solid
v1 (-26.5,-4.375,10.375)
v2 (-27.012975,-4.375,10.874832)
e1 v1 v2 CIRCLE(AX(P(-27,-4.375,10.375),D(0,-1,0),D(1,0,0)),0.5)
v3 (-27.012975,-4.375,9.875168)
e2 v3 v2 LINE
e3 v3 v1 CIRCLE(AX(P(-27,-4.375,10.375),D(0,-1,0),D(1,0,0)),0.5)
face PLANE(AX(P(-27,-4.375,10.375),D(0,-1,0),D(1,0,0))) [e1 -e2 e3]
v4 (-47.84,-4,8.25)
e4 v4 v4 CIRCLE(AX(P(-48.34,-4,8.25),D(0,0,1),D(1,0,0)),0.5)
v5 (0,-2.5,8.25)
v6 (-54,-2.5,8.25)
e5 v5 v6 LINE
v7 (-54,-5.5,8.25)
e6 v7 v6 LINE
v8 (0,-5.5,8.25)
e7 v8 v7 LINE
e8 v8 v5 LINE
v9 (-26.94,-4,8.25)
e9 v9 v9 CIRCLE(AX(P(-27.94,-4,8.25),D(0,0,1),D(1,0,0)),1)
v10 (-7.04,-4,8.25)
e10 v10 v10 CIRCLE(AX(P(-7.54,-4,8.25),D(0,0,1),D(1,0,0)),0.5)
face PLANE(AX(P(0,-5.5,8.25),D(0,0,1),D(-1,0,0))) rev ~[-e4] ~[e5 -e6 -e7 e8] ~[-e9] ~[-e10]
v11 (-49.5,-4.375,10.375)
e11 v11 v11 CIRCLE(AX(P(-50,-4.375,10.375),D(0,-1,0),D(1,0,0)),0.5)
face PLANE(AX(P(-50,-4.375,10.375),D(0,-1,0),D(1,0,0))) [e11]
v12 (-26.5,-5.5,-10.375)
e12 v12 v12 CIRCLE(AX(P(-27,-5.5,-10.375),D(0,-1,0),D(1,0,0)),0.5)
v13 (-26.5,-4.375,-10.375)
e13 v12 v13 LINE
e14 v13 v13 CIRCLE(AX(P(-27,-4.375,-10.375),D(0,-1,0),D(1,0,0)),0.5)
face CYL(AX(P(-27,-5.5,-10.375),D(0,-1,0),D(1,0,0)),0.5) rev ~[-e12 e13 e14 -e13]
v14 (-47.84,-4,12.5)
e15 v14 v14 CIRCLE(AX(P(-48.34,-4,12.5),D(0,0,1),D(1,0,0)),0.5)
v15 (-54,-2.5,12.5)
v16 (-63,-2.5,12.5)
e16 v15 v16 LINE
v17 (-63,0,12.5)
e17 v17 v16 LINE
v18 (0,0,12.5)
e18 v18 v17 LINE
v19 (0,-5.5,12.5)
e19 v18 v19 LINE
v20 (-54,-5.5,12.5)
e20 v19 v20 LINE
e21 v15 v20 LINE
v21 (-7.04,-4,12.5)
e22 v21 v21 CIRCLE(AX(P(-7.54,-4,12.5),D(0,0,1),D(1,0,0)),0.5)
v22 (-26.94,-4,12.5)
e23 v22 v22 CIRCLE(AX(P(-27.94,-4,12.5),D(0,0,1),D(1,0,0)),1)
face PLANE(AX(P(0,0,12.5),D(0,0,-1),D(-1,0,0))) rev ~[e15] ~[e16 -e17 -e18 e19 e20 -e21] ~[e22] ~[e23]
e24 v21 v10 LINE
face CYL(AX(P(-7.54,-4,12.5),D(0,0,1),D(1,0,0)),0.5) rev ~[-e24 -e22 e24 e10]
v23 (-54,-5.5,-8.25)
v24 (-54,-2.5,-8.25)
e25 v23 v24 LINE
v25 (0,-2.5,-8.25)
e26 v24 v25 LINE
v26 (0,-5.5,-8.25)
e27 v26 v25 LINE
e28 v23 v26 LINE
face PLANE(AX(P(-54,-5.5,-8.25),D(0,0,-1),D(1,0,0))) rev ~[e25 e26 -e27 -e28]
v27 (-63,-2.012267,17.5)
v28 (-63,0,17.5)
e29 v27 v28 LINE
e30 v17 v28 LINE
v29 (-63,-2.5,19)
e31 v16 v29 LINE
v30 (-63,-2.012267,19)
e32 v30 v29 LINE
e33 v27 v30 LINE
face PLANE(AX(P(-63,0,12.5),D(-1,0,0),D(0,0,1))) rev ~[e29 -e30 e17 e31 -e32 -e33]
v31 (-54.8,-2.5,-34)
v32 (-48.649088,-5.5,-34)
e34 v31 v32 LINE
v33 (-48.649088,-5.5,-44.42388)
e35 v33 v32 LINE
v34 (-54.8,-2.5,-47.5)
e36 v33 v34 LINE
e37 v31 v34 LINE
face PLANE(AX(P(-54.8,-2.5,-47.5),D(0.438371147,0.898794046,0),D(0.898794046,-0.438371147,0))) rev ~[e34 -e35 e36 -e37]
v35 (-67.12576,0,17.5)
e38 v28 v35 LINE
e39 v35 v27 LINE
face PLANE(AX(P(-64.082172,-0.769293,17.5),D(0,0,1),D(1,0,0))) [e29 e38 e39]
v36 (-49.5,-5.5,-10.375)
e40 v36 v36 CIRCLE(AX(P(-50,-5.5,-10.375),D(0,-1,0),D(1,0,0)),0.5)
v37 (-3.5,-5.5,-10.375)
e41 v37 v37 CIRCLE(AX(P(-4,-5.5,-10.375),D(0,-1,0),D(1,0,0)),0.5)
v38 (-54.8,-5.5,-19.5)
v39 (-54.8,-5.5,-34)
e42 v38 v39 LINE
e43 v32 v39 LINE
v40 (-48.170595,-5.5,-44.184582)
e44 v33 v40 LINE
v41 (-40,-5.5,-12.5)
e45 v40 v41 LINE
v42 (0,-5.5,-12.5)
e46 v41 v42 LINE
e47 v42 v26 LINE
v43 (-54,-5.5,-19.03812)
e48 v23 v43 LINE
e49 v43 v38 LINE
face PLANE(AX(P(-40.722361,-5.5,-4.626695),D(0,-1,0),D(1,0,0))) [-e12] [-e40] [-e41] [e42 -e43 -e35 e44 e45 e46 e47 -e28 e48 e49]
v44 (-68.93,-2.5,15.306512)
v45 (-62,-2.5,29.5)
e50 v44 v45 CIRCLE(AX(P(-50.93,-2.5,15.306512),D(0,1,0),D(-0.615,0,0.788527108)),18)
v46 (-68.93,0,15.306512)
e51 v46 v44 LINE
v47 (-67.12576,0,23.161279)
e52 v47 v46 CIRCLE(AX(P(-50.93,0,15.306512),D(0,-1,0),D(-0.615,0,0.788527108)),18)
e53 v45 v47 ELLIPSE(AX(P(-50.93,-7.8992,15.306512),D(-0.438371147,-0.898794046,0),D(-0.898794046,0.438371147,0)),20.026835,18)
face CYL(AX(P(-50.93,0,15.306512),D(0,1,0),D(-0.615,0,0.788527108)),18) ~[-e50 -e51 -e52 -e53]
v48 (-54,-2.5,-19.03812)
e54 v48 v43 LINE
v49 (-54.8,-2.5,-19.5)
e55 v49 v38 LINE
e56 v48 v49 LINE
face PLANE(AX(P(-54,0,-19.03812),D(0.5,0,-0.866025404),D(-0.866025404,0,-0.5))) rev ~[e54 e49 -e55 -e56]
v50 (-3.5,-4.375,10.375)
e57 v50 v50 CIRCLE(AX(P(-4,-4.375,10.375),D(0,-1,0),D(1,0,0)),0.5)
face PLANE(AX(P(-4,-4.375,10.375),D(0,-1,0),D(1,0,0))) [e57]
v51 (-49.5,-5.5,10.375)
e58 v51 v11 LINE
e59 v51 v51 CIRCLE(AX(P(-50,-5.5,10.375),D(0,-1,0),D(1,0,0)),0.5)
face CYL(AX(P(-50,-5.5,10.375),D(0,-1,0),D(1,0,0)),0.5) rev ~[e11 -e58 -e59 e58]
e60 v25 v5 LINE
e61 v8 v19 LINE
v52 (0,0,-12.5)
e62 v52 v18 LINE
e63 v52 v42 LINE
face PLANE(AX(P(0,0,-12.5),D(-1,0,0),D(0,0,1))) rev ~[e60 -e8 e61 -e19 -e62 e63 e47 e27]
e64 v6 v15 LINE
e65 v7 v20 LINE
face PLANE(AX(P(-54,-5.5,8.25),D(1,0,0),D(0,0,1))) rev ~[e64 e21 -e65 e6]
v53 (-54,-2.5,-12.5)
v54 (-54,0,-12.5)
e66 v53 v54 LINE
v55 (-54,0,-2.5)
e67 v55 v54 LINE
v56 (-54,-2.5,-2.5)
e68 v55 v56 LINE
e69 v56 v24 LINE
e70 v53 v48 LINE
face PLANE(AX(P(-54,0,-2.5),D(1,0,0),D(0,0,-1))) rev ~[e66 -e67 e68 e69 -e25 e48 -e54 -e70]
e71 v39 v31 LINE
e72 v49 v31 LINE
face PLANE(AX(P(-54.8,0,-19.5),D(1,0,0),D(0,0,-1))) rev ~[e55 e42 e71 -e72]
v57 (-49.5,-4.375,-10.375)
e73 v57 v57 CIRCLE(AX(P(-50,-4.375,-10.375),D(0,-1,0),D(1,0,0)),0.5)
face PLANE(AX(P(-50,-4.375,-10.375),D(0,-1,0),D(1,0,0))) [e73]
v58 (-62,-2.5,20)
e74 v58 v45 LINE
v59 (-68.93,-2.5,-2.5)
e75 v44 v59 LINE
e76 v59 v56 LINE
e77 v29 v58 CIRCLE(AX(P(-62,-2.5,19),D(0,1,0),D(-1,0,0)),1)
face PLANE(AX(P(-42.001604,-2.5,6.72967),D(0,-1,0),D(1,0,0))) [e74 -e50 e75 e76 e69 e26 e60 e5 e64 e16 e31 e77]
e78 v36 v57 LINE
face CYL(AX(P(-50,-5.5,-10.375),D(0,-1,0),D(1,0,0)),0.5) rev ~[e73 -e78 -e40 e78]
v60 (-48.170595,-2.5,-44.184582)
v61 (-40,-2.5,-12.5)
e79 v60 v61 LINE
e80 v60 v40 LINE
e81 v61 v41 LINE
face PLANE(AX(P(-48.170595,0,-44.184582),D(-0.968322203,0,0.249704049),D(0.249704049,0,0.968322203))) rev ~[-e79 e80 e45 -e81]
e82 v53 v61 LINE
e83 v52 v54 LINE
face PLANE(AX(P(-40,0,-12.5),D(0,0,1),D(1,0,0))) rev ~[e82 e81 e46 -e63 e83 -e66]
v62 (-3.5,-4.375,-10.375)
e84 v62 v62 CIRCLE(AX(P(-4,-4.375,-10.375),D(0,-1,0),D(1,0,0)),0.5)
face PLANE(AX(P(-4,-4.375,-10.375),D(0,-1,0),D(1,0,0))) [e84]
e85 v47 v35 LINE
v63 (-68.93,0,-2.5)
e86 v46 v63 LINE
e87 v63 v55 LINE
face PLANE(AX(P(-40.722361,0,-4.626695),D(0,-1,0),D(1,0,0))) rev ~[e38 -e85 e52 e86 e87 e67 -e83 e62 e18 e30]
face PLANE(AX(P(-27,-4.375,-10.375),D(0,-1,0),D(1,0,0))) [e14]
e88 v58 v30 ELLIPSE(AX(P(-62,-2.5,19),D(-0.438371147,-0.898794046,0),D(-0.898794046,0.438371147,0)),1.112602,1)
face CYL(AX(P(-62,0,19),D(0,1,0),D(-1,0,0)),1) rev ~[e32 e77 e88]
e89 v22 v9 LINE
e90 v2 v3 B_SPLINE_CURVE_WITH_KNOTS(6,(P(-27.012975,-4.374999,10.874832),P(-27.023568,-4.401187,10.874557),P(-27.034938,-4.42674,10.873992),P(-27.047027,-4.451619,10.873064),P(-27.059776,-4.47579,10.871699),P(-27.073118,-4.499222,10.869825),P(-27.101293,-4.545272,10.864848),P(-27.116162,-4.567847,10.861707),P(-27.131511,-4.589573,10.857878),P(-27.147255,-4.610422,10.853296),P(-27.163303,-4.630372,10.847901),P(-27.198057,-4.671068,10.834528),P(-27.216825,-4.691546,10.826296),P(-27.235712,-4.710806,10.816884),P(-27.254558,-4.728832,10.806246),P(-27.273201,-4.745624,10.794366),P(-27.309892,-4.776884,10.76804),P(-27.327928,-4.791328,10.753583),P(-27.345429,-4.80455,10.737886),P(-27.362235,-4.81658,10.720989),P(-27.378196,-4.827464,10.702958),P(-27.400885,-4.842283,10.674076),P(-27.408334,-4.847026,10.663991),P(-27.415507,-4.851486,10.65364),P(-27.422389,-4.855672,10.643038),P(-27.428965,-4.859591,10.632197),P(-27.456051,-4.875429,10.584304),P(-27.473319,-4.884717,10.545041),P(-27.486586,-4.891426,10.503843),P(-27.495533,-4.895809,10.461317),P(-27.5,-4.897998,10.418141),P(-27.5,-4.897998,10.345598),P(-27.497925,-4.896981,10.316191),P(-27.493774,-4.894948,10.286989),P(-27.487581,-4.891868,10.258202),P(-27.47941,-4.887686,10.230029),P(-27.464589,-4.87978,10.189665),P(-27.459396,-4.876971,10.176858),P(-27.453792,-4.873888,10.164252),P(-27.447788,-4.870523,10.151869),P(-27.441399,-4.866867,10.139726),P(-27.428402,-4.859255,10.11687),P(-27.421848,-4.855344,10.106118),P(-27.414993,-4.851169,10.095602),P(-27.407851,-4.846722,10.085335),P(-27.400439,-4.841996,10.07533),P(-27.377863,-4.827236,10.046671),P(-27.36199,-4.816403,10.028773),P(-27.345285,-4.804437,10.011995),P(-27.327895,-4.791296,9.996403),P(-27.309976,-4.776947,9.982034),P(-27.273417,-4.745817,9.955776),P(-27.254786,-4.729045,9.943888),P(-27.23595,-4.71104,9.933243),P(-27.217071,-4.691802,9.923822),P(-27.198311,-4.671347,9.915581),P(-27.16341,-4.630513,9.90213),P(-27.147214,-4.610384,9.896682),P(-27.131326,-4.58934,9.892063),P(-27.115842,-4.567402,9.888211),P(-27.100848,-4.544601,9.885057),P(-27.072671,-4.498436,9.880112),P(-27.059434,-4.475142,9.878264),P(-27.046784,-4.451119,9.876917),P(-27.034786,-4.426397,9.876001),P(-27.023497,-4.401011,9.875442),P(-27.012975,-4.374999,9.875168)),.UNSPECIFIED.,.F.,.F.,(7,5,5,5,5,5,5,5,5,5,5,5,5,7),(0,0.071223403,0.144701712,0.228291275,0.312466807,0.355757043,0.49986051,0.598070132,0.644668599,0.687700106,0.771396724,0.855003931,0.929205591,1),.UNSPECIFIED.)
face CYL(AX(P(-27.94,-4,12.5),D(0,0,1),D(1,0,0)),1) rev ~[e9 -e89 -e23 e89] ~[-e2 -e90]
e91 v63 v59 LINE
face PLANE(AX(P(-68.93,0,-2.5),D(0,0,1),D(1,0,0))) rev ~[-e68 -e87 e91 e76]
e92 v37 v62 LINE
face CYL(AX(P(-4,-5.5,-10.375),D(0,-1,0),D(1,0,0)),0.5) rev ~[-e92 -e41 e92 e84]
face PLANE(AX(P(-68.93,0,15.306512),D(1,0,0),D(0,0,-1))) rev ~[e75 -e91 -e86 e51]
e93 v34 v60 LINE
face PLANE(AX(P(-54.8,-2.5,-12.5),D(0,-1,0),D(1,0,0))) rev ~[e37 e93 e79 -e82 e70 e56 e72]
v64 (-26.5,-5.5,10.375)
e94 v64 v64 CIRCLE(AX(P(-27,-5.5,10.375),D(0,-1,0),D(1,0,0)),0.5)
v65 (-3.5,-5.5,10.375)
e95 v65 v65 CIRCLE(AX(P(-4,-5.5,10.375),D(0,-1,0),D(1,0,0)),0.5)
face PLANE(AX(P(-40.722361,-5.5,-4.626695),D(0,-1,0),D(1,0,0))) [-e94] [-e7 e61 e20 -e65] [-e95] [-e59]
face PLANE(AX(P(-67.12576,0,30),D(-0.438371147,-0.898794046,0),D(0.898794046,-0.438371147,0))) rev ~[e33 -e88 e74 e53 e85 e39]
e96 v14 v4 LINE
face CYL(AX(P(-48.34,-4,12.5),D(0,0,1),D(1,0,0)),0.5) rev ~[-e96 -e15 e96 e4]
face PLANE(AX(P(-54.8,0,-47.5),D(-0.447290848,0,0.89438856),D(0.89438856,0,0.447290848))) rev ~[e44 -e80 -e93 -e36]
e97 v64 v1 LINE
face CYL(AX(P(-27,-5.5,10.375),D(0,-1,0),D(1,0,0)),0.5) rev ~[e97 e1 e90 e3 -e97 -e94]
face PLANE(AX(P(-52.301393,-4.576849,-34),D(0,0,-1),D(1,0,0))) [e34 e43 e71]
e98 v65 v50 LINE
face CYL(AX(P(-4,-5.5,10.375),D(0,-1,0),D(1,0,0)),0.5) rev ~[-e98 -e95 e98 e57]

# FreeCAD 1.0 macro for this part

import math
import FreeCAD as App
import Part
import Sketcher
Q = App.Units.Quantity


def add_polygon(sketch, points):
    """Adds a closed chain of lines whose ends are joined by coincident constraints."""
    first, n = sketch.GeometryCount, len(points)
    for a, b in zip(points, points[1:] + points[:1]):
        sketch.addGeometry(Part.LineSegment(App.Vector(*a, 0), App.Vector(*b, 0)), False)
    for i in range(n):
        sketch.addConstraint(Sketcher.Constraint("Coincident", first + i, 2, first + (i + 1) % n, 1))

doc = App.newDocument("Part")
body = doc.addObject("PartDesign::Body", "Body")

# Sketch on XZ plane
sketch1 = doc.addObject("Sketcher::SketchObject", "Sketch")
body.addObject(sketch1)
sketch1.AttachmentSupport = (doc.XZ_Plane, [""])
sketch1.MapMode = "FlatFace"
sketch1.addGeometry([
    Part.LineSegment(App.Vector(0, -12.5, 0), App.Vector(0, 12.5, 0)),  # 0
    Part.LineSegment(App.Vector(0, 12.5, 0), App.Vector(-63, 12.5, 0)),  # 1
    Part.LineSegment(App.Vector(-63, 12.5, 0), App.Vector(-63, 19, 0)),  # 2
    Part.ArcOfCircle(Part.Circle(App.Vector(-62, 19, 0), App.Vector(0, 0, 1), 1), math.radians(90), math.radians(180)),  # 3
    Part.LineSegment(App.Vector(-62, 20, 0), App.Vector(-62, 29.5, 0)),  # 4
    Part.ArcOfCircle(Part.Circle(App.Vector(-50.9, 15.3, 0), App.Vector(0, 0, 1), 18), math.radians(128), math.radians(180)),  # 5
    Part.LineSegment(App.Vector(-68.9, 15.3, 0), App.Vector(-68.9, -2.5, 0)),  # 6
    Part.LineSegment(App.Vector(-68.9, -2.5, 0), App.Vector(-54, -2.5, 0)),  # 7
    Part.LineSegment(App.Vector(-54, -2.5, 0), App.Vector(-54, -19, 0)),  # 8
    Part.LineSegment(App.Vector(-54, -19, 0), App.Vector(-54.8, -19.5, 0)),  # 9
    Part.LineSegment(App.Vector(-54.8, -19.5, 0), App.Vector(-54.8, -47.5, 0)),  # 10
    Part.LineSegment(App.Vector(-54.8, -47.5, 0), App.Vector(-48.2, -44.2, 0)),  # 11
    Part.LineSegment(App.Vector(-48.2, -44.2, 0), App.Vector(-40, -12.5, 0)),  # 12
    Part.LineSegment(App.Vector(-40, -12.5, 0), App.Vector(0, -12.5, 0)),  # 13
], False)
sketch1.addConstraint([
    Sketcher.Constraint("Coincident", 0, 2, 1, 1),
    Sketcher.Constraint("Coincident", 1, 2, 2, 1),
    Sketcher.Constraint("Tangent", 2, 2, 3, 2),
    Sketcher.Constraint("Coincident", 3, 1, 4, 1),
    Sketcher.Constraint("Coincident", 4, 2, 5, 1),
    Sketcher.Constraint("Tangent", 5, 2, 6, 1),
    Sketcher.Constraint("Coincident", 6, 2, 7, 1),
    Sketcher.Constraint("Coincident", 7, 2, 8, 1),
    Sketcher.Constraint("Coincident", 8, 2, 9, 1),
    Sketcher.Constraint("Coincident", 9, 2, 10, 1),
    Sketcher.Constraint("Coincident", 10, 2, 11, 1),
    Sketcher.Constraint("Coincident", 11, 2, 12, 1),
    Sketcher.Constraint("Coincident", 12, 2, 13, 1),
    Sketcher.Constraint("Coincident", 13, 2, 0, 1),
    Sketcher.Constraint("Vertical", 0),
    Sketcher.Constraint("Horizontal", 1),
    Sketcher.Constraint("Vertical", 2),
    Sketcher.Constraint("Vertical", 4),
    Sketcher.Constraint("Vertical", 6),
    Sketcher.Constraint("Horizontal", 7),
    Sketcher.Constraint("Vertical", 8),
    Sketcher.Constraint("Vertical", 10),
    Sketcher.Constraint("Horizontal", 13),
    Sketcher.Constraint("Symmetric", 0, 2, 13, 2, -1, 1),
    Sketcher.Constraint("Radius", 3, Q("1 mm")),
    Sketcher.Constraint("Radius", 5, Q("18 mm")),
    Sketcher.Constraint("DistanceX", 1, 2, 1, 1, Q("63 mm")),
    Sketcher.Constraint("DistanceX", 13, 1, 13, 2, Q("40 mm")),
    Sketcher.Constraint("DistanceY", 0, 1, 0, 2, Q("25 mm")),
    Sketcher.Constraint("DistanceY", 10, 2, 10, 1, Q("28 mm")),
    Sketcher.Constraint("Angle", 9, Q("-150 deg")),
    Sketcher.Constraint("DistanceY", 2, 1, 2, 2, Q("6.5 mm")),
    Sketcher.Constraint("DistanceY", 4, 1, 4, 2, Q("9.5 mm")),
    Sketcher.Constraint("DistanceX", 3, 1, -1, 1, Q("62 mm")),
    Sketcher.Constraint("DistanceX", 7, 2, -1, 1, Q("54 mm")),
    Sketcher.Constraint("DistanceY", 6, 2, 1, 2, Q("15 mm")),
    Sketcher.Constraint("DistanceY", 9, 2, 7, 2, Q("17 mm")),
    Sketcher.Constraint("DistanceX", 7, 1, 7, 2, Q("14.93 mm")),
    Sketcher.Constraint("DistanceX", 9, 2, -1, 1, Q("54.8 mm")),
    Sketcher.Constraint("Angle", 11, Q("26.57 deg")),
    Sketcher.Constraint("Angle", 12, Q("75.54 deg")),
])
pad1 = doc.addObject("PartDesign::Pad", "Pad")
body.addObject(pad1)
pad1.Profile = sketch1
pad1.Length = 5.5

# Sketch on XZ plane
sketch2 = doc.addObject("Sketcher::SketchObject", "Sketch001")
body.addObject(sketch2)
sketch2.AttachmentSupport = (doc.XZ_Plane, [""])
sketch2.MapMode = "FlatFace"
sketch2.AttachmentOffset = App.Placement(App.Vector(0, 0, 5.5), App.Rotation())
add_polygon(sketch2, [(0, -8), (0, 8), (-54, 8), (-54, 32), (-74, 32), (-74, -2), (-54, -2), (-54, -8)])  # lines 0-7
sketch2.addConstraint([
    Sketcher.Constraint("Vertical", 0),
    Sketcher.Constraint("Horizontal", 1),
    Sketcher.Constraint("Vertical", 2),
    Sketcher.Constraint("Horizontal", 3),
    Sketcher.Constraint("Vertical", 4),
    Sketcher.Constraint("Horizontal", 5),
    Sketcher.Constraint("Vertical", 6),
    Sketcher.Constraint("Horizontal", 7),
    Sketcher.Constraint("Symmetric", 0, 2, 7, 2, -1, 1),
    Sketcher.Constraint("Vertical", 2, 2, 5, 2),
    Sketcher.Constraint("DistanceX", 1, 2, 1, 1, Q("54 mm")),
    Sketcher.Constraint("DistanceY", 0, 1, 0, 2, Q("16.5 mm")),
    Sketcher.Constraint("DistanceY", 6, 2, 6, 1, Q("5.75 mm")),
    Sketcher.Constraint("DistanceY", 2, 1, 2, 2, Q("23.68365 mm")),
    Sketcher.Constraint("DistanceX", 3, 2, 3, 1, Q("19.778898 mm")),
])
pocket1 = doc.addObject("PartDesign::Pocket", "Pocket")
body.addObject(pocket1)
pocket1.Profile = sketch2
pocket1.Length = 3

# Sketch on XZ plane
sketch3 = doc.addObject("Sketcher::SketchObject", "Sketch002")
body.addObject(sketch3)
sketch3.AttachmentSupport = (doc.XZ_Plane, [""])
sketch3.MapMode = "FlatFace"
sketch3.AttachmentOffset = App.Placement(App.Vector(0, 0, 5.5), App.Rotation())
sketch3.addGeometry([
    Part.Circle(App.Vector(-4, 10.4, 0), App.Vector(0, 0, 1), 0.5),  # 0
    Part.Circle(App.Vector(-27, 10.4, 0), App.Vector(0, 0, 1), 0.5),  # 1
    Part.Circle(App.Vector(-50, 10.4, 0), App.Vector(0, 0, 1), 0.5),  # 2
    Part.Circle(App.Vector(-50, -10.4, 0), App.Vector(0, 0, 1), 0.5),  # 3
    Part.Circle(App.Vector(-27, -10.4, 0), App.Vector(0, 0, 1), 0.5),  # 4
    Part.Circle(App.Vector(-4, -10.4, 0), App.Vector(0, 0, 1), 0.5),  # 5
], False)
sketch3.addConstraint([
    Sketcher.Constraint("Equal", 0, 1),
    Sketcher.Constraint("Equal", 1, 2),
    Sketcher.Constraint("Equal", 2, 3),
    Sketcher.Constraint("Equal", 3, 4),
    Sketcher.Constraint("Equal", 4, 5),
    Sketcher.Constraint("Symmetric", 2, 3, 3, 3, -1),
    Sketcher.Constraint("Symmetric", 1, 3, 4, 3, -1),
    Sketcher.Constraint("Symmetric", 0, 3, 5, 3, -1),
    Sketcher.Constraint("Horizontal", 0, 3, 1, 3),
    Sketcher.Constraint("Horizontal", 1, 3, 2, 3),
    Sketcher.Constraint("Diameter", 0, Q("1 mm")),
    Sketcher.Constraint("DistanceX", 0, 3, -1, 1, Q("4 mm")),
    Sketcher.Constraint("DistanceX", 1, 3, -1, 1, Q("27 mm")),
    Sketcher.Constraint("DistanceX", 2, 3, -1, 1, Q("50 mm")),
    Sketcher.Constraint("DistanceY", 3, 3, 2, 3, Q("20.75 mm")),
])
pocket2 = doc.addObject("PartDesign::Pocket", "Pocket001")
body.addObject(pocket2)
pocket2.Profile = sketch3
pocket2.Length = 1.125

# Sketch on XY plane
sketch4 = doc.addObject("Sketcher::SketchObject", "Sketch003")
body.addObject(sketch4)
sketch4.AttachmentSupport = (doc.XY_Plane, [""])
sketch4.MapMode = "FlatFace"
sketch4.AttachmentOffset = App.Placement(App.Vector(0, 0, 30), App.Rotation())
add_polygon(sketch4, [(-67.1, 0), (-62, -2.5), (-62, 0)])  # lines 0-2
sketch4.addConstraint([
    Sketcher.Constraint("Vertical", 1),
    Sketcher.Constraint("Horizontal", 2),
    Sketcher.Constraint("PointOnObject", 1, 2, -1),
    Sketcher.Constraint("Angle", 0, Q("-26 deg")),
    Sketcher.Constraint("DistanceY", 1, 1, 1, 2, Q("2.5 mm")),
    Sketcher.Constraint("DistanceX", 0, 2, -1, 1, Q("62 mm")),
])
pocket3 = doc.addObject("PartDesign::Pocket", "Pocket002")
body.addObject(pocket3)
pocket3.Profile = sketch4
pocket3.Length = 12.5

# Sketch on XY plane
sketch5 = doc.addObject("Sketcher::SketchObject", "Sketch004")
body.addObject(sketch5)
sketch5.AttachmentSupport = (doc.XY_Plane, [""])
sketch5.MapMode = "FlatFace"
sketch5.AttachmentOffset = App.Placement(App.Vector(0, 0, -12.5), App.Rotation())
add_polygon(sketch5, [(-54.8, -2.5), (-54.8, 0), (-40, 0), (-40, -2.5)])  # lines 0-3
sketch5.addConstraint([
    Sketcher.Constraint("Vertical", 0),
    Sketcher.Constraint("Horizontal", 1),
    Sketcher.Constraint("Vertical", 2),
    Sketcher.Constraint("Horizontal", 3),
    Sketcher.Constraint("PointOnObject", 0, 2, -1),
    Sketcher.Constraint("DistanceX", 1, 1, 1, 2, Q("14.8 mm")),
    Sketcher.Constraint("DistanceY", 0, 1, 0, 2, Q("2.5 mm")),
    Sketcher.Constraint("DistanceX", 1, 2, -1, 1, Q("40 mm")),
])
pocket4 = doc.addObject("PartDesign::Pocket", "Pocket003")
body.addObject(pocket4)
pocket4.Profile = sketch5
pocket4.Length = 47

# Sketch on XY plane
sketch6 = doc.addObject("Sketcher::SketchObject", "Sketch005")
body.addObject(sketch6)
sketch6.AttachmentSupport = (doc.XY_Plane, [""])
sketch6.MapMode = "FlatFace"
sketch6.AttachmentOffset = App.Placement(App.Vector(0, 0, -47.5), App.Rotation())
add_polygon(sketch6, [(-48.6, -5.5), (-54.8, -5.5), (-54.8, -2.5)])  # lines 0-2
sketch6.addConstraint([
    Sketcher.Constraint("Horizontal", 0),
    Sketcher.Constraint("Vertical", 1),
    Sketcher.Constraint("DistanceY", 1, 1, 1, 2, Q("3 mm")),
    Sketcher.Constraint("Angle", 2, Q("-26 deg")),
    Sketcher.Constraint("DistanceX", 0, 2, -1, 1, Q("54.8 mm")),
    Sketcher.Constraint("DistanceY", 0, 2, -1, 1, Q("5.5 mm")),
])
pocket5 = doc.addObject("PartDesign::Pocket", "Pocket004")
body.addObject(pocket5)
pocket5.Profile = sketch6
pocket5.Length = 13.5
pocket5.Reversed = True

# Sketch on XY plane
sketch7 = doc.addObject("Sketcher::SketchObject", "Sketch006")
body.addObject(sketch7)
sketch7.AttachmentSupport = (doc.XY_Plane, [""])
sketch7.MapMode = "FlatFace"
sketch7.AttachmentOffset = App.Placement(App.Vector(0, 0, 12.5), App.Rotation())
sketch7.addGeometry([
    Part.Circle(App.Vector(-7.5, -4, 0), App.Vector(0, 0, 1), 0.5),
    Part.Circle(App.Vector(-48.3, -4, 0), App.Vector(0, 0, 1), 0.5),
], False)
sketch7.addConstraint([
    Sketcher.Constraint("Equal", 0, 1),
    Sketcher.Constraint("Horizontal", 0, 3, 1, 3),
    Sketcher.Constraint("Diameter", 0, Q("1 mm")),
    Sketcher.Constraint("DistanceY", 0, 3, -1, 1, Q("4 mm")),
    Sketcher.Constraint("DistanceX", 1, 3, 0, 3, Q("40.8 mm")),
    Sketcher.Constraint("DistanceX", 0, 3, -1, 1, Q("7.54 mm")),
])
pocket6 = doc.addObject("PartDesign::Pocket", "Pocket005")
body.addObject(pocket6)
pocket6.Profile = sketch7
pocket6.Length = 4.25

# Sketch on XY plane
sketch8 = doc.addObject("Sketcher::SketchObject", "Sketch007")
body.addObject(sketch8)
sketch8.AttachmentSupport = (doc.XY_Plane, [""])
sketch8.MapMode = "FlatFace"
sketch8.AttachmentOffset = App.Placement(App.Vector(0, 0, 12.5), App.Rotation())
sketch8.addGeometry(Part.Circle(App.Vector(-27.9, -4, 0), App.Vector(0, 0, 1), 1), False)
sketch8.addConstraint([
    Sketcher.Constraint("Diameter", 0, Q("2 mm")),
    Sketcher.Constraint("DistanceY", 0, 3, -1, 1, Q("4 mm")),
    Sketcher.Constraint("DistanceX", 0, 3, -1, 1, Q("27.94 mm")),
])
pocket7 = doc.addObject("PartDesign::Pocket", "Pocket006")
body.addObject(pocket7)
pocket7.Profile = sketch8
pocket7.Length = 4.25

doc.recompute()
